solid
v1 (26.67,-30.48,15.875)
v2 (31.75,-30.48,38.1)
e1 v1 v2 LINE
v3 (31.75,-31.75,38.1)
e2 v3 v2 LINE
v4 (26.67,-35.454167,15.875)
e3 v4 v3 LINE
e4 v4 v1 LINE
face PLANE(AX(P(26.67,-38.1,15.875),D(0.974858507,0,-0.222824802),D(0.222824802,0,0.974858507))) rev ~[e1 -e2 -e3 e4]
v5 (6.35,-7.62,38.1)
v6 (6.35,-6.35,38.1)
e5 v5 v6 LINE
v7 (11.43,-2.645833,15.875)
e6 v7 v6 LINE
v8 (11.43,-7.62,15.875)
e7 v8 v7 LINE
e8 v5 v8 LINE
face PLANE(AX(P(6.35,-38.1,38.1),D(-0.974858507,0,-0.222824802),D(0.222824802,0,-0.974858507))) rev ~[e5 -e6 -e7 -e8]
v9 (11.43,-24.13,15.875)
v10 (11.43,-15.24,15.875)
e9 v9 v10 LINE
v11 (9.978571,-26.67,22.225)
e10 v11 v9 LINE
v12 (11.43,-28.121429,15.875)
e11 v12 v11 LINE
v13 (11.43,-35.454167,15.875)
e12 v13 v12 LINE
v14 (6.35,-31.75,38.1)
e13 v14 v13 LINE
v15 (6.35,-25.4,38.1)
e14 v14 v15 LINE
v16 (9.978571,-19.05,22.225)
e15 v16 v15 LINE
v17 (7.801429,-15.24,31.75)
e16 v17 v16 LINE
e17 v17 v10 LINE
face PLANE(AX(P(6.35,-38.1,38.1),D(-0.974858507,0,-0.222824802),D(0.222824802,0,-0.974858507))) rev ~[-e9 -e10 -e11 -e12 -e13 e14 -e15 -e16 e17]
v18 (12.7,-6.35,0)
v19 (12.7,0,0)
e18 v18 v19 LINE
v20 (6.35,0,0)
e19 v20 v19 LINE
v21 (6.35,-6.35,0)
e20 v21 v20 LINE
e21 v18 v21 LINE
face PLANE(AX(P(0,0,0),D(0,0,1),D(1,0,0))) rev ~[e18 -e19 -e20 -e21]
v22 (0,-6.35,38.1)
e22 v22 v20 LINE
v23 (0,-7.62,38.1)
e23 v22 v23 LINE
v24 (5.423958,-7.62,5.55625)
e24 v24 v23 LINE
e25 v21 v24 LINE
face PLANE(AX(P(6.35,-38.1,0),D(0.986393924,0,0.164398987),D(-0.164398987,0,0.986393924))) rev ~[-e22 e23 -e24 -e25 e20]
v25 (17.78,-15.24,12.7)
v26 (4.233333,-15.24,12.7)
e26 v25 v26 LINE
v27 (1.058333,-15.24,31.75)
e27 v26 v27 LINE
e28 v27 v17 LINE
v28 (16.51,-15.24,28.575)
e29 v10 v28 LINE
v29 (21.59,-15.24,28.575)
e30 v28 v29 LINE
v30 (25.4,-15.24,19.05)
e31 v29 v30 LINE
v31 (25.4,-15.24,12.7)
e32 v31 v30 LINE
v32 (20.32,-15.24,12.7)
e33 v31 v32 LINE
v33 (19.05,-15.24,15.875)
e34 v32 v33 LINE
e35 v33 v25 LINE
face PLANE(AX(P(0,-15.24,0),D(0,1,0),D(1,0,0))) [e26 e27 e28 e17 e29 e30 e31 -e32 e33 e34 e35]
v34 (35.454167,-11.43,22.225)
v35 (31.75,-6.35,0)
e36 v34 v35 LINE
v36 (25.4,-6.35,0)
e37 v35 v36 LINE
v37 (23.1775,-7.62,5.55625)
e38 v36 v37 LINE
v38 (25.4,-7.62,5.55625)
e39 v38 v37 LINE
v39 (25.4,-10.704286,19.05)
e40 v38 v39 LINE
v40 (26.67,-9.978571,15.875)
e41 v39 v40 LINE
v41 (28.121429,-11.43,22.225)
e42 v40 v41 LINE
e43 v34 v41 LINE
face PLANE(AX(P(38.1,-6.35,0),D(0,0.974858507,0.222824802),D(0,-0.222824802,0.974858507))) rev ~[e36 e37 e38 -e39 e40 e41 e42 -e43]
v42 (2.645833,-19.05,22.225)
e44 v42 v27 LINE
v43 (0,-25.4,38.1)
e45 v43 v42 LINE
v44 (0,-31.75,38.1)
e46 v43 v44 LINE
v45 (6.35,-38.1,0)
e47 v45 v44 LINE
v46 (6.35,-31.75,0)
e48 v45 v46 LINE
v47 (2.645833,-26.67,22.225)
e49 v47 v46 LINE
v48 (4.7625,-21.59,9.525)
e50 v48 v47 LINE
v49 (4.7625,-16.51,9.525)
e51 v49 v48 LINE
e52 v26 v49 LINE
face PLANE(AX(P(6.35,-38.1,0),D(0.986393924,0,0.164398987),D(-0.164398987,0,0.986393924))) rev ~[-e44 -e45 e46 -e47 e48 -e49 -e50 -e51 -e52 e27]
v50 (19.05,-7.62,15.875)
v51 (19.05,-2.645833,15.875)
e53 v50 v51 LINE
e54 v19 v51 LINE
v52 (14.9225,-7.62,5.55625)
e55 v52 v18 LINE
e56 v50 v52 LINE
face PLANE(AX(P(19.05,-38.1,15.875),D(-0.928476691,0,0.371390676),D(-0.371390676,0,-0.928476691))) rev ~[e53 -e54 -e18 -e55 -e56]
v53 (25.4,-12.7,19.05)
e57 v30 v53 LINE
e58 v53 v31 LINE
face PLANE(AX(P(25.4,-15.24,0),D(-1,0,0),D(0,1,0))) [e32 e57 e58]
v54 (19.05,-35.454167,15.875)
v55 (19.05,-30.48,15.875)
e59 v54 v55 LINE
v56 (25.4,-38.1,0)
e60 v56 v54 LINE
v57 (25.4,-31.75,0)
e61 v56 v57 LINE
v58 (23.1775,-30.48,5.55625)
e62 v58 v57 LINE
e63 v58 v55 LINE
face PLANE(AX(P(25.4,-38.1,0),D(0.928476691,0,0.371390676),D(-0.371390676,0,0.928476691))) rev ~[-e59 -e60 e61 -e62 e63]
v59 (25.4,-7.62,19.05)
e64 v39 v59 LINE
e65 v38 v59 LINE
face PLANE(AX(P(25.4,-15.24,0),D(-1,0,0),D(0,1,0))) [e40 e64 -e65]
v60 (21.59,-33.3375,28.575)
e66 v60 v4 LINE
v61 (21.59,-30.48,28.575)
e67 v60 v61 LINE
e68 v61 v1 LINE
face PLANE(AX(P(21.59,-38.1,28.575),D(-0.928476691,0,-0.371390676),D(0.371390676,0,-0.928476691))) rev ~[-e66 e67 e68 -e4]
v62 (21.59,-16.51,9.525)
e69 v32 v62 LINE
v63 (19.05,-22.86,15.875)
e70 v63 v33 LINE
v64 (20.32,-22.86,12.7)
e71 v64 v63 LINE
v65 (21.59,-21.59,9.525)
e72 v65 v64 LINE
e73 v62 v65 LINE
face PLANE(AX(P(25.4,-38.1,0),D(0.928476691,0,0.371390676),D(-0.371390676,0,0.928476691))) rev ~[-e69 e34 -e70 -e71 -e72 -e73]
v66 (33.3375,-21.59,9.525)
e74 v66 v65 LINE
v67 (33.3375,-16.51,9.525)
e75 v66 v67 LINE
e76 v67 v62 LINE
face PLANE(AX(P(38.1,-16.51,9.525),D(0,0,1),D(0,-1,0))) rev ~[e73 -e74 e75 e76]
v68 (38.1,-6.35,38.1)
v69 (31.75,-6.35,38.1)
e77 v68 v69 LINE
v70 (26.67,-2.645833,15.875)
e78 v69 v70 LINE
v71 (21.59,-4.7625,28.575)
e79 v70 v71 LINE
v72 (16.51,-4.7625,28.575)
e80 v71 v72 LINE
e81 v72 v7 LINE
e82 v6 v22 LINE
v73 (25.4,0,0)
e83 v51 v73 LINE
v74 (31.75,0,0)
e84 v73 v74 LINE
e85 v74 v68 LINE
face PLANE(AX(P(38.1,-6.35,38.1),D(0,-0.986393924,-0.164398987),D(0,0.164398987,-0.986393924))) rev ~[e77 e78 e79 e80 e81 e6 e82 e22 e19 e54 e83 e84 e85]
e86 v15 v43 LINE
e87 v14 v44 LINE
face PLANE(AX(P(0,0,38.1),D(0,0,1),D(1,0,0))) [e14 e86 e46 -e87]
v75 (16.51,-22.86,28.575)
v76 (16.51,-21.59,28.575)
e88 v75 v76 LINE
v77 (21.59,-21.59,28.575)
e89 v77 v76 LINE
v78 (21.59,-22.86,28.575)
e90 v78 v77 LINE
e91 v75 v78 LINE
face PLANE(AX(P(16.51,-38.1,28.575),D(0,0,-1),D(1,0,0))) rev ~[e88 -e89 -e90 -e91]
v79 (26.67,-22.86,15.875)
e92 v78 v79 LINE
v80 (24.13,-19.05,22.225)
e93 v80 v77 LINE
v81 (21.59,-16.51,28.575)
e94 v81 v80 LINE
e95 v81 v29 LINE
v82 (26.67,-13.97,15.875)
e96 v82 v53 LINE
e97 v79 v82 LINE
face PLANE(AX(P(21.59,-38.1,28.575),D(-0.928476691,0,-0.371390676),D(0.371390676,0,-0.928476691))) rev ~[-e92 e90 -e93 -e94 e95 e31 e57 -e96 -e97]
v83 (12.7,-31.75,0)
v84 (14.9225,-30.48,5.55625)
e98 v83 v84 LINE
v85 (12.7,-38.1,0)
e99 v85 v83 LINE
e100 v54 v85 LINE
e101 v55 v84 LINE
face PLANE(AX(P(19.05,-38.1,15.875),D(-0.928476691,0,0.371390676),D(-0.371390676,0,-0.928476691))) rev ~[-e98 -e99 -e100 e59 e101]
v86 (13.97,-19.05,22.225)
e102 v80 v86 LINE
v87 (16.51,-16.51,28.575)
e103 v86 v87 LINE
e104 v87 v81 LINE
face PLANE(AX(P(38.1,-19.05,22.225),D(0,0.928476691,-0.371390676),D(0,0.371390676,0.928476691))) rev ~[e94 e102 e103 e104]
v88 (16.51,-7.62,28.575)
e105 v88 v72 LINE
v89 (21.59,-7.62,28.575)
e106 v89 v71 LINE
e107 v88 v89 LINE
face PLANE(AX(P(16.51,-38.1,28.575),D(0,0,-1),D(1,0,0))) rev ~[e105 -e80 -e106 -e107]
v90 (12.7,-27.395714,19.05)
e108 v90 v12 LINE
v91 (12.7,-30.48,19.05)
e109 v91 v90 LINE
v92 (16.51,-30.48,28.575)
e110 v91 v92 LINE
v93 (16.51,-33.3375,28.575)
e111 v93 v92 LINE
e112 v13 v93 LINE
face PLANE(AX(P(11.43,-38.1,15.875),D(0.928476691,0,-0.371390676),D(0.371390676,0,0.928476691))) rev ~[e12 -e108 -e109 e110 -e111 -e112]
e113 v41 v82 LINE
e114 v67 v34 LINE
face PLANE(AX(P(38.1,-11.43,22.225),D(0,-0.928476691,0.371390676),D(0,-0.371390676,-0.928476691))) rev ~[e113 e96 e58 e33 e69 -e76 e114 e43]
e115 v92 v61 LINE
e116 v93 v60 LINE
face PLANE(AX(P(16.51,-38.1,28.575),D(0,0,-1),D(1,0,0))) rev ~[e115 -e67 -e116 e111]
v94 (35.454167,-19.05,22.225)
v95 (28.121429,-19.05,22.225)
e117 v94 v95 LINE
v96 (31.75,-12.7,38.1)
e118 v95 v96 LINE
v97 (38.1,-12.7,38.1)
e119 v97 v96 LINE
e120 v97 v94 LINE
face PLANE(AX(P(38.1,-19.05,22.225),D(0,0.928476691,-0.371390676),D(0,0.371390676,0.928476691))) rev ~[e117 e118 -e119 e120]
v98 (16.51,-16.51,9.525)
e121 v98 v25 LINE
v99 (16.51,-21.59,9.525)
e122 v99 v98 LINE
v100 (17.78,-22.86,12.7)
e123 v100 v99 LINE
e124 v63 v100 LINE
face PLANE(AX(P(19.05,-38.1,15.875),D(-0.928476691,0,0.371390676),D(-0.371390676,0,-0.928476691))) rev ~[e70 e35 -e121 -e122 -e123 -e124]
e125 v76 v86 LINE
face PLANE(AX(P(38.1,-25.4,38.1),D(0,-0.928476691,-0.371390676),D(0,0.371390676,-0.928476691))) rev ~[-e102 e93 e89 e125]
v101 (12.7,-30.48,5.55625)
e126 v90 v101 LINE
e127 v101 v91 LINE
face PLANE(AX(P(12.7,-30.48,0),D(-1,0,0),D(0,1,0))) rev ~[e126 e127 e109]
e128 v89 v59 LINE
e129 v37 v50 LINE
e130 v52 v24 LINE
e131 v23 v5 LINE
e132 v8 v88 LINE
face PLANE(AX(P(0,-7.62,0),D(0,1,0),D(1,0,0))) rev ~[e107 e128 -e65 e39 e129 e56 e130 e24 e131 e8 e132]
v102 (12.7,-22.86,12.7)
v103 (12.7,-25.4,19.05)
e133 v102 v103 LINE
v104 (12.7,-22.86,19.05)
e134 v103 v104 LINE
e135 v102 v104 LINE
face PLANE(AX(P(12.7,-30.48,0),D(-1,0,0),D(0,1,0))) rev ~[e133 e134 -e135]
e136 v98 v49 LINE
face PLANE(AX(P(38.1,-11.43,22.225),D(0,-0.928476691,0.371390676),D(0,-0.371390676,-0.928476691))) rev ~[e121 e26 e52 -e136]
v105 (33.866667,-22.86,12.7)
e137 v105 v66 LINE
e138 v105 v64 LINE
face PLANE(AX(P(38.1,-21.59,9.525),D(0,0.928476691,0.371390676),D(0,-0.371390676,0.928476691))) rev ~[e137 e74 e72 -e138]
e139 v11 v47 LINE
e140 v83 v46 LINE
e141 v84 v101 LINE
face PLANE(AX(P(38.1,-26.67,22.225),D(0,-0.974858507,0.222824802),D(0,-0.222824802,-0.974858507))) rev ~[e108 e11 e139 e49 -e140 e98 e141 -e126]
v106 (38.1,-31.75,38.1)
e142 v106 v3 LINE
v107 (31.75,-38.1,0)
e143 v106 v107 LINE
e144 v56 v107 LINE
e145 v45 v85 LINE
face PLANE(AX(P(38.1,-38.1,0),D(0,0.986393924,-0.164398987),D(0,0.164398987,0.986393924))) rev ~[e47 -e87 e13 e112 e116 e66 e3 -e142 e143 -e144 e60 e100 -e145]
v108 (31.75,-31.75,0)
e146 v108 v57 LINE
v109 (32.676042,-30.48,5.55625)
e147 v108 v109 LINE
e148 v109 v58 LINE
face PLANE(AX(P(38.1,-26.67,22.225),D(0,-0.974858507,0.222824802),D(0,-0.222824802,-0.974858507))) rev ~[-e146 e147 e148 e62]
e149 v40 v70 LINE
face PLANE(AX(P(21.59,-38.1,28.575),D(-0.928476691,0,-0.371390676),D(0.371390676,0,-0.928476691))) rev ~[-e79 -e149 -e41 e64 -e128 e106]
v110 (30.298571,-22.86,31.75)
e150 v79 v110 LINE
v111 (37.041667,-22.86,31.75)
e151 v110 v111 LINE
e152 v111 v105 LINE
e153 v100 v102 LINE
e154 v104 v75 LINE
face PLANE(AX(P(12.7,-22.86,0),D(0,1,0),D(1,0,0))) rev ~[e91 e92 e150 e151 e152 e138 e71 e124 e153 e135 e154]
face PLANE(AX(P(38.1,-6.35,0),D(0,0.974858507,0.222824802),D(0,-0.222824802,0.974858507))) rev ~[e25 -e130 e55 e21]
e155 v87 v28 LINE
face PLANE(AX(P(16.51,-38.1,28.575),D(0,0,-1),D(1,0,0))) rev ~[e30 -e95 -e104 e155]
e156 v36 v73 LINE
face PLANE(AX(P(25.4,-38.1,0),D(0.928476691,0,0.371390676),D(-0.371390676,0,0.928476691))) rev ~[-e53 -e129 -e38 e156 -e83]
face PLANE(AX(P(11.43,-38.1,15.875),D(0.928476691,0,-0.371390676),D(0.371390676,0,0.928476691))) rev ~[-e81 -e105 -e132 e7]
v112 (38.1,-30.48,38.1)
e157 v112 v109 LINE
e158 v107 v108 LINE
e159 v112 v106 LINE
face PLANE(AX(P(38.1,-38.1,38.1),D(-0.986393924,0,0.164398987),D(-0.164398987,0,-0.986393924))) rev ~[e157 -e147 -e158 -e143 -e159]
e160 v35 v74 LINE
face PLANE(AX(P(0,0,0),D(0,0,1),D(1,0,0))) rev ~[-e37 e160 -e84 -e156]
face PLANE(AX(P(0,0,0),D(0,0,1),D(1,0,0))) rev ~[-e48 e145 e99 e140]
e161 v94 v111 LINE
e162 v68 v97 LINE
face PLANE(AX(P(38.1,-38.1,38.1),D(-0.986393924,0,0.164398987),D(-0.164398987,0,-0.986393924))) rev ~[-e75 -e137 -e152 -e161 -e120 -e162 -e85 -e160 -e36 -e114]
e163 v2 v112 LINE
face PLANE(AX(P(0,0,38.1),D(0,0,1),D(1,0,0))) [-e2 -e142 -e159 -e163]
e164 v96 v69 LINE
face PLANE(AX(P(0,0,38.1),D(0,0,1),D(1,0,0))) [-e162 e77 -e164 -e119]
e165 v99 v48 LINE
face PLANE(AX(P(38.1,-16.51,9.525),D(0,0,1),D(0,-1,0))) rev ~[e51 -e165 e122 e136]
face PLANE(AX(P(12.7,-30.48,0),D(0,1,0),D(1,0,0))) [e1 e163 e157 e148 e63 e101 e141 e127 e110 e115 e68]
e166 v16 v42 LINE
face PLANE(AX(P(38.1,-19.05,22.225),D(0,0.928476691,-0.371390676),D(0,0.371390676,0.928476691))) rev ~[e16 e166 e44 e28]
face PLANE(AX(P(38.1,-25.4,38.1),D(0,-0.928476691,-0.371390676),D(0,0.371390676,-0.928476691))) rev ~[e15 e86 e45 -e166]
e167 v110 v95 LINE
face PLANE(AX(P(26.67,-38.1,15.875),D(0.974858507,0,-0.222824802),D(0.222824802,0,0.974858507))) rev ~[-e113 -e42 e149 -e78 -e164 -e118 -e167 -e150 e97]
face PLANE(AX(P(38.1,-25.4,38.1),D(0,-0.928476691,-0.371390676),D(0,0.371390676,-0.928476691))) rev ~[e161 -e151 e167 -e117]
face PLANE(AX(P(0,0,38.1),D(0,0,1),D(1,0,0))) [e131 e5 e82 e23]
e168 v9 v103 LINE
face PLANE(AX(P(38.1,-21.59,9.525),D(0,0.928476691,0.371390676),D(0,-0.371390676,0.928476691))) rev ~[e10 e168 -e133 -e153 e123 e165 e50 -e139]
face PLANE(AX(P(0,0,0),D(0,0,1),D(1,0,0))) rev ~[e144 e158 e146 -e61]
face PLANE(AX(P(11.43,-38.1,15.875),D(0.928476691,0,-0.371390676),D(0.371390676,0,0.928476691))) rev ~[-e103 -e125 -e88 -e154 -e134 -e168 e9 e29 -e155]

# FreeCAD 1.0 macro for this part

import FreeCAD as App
import Part
import Sketcher
Q = App.Units.Quantity


def add_polygon(sketch, points):
    """Adds a closed chain of lines whose ends are joined by coincident constraints."""
    first, n = sketch.GeometryCount, len(points)
    for a, b in zip(points, points[1:] + points[:1]):
        sketch.addGeometry(Part.LineSegment(App.Vector(*a, 0), App.Vector(*b, 0)), False)
    for i in range(n):
        sketch.addConstraint(Sketcher.Constraint("Coincident", first + i, 2, first + (i + 1) % n, 1))

doc = App.newDocument("Part")
params = doc.addObject("Spreadsheet::Sheet", "Params")
for row, (alias, value) in enumerate([
    ("sketch1_width", "1.5 in"),
    ("pad1_length", "1.5 in"),
    ("sketch2_width", "1 in"),
    ("sketch2_width2", "0.5 in"),
    ("sketch2_width3", "0.2 in"),
    ("sketch2_height", "1.5 in"),
    ("pocket1_length", "1.5 in"),
    ("sketch3_width", "1 in"),
    ("sketch3_width2", "0.2 in"),
    ("sketch3_width3", "0.5 in"),
    ("sketch3_height", "1.5 in"),
    ("pocket2_length", "1.5 in"),
    ("sketch4_width", "1 in"),
    ("sketch4_height", "0.3 in"),
    ("pocket3_length", "1.5 in"),
], start=1):
    params.set(f"A{row}", alias)
    params.set(f"B{row}", "=" + value)
    params.setAlias(f"B{row}", alias)

body = doc.addObject("PartDesign::Body", "Body")

# Sketch on XZ plane
sketch1 = doc.addObject("Sketcher::SketchObject", "Sketch")
body.addObject(sketch1)
sketch1.AttachmentSupport = (doc.XZ_Plane, [""])
sketch1.MapMode = "FlatFace"
add_polygon(sketch1, [(0, 38), (0, 0), (38, 0), (38, 38)])  # lines 0-3
sketch1.addConstraint([
    Sketcher.Constraint("Vertical", 0),
    Sketcher.Constraint("Horizontal", 1),
    Sketcher.Constraint("Vertical", 2),
    Sketcher.Constraint("Horizontal", 3),
    Sketcher.Constraint("Coincident", 0, 2, -1, 1),
    Sketcher.Constraint("Equal", 3, 0),
    Sketcher.Constraint("DistanceX", 1, 1, 1, 2, Q("1.5 in")),
])
sketch1.setExpression("Constraints[10]", "Params.sketch1_width")
pad1 = doc.addObject("PartDesign::Pad", "Pad")
body.addObject(pad1)
pad1.Profile = sketch1
pad1.setExpression("Length", "Params.pad1_length")

# Sketch on XZ plane
sketch2 = doc.addObject("Sketcher::SketchObject", "Sketch001")
body.addObject(sketch2)
sketch2.AttachmentSupport = (doc.XZ_Plane, [""])
sketch2.MapMode = "FlatFace"
sketch2.AttachmentOffset = App.Placement(App.Vector(0, 0, 1.5 * 25.4), App.Rotation())
add_polygon(sketch2, [(0, 38), (0, 0), (6, 0)])  # lines 0-2
add_polygon(sketch2, [(19, 16), (13, 0), (25, 0)])  # lines 3-5
add_polygon(sketch2, [(32, 38), (6, 38), (11, 16), (17, 29), (22, 29), (27, 16)])  # lines 6-11
add_polygon(sketch2, [(38, 0), (38, 38), (32, 0)])  # lines 12-14
sketch2.addConstraint([
    Sketcher.Constraint("Vertical", 0),
    Sketcher.Constraint("Horizontal", 1),
    Sketcher.Constraint("Horizontal", 4),
    Sketcher.Constraint("Horizontal", 6),
    Sketcher.Constraint("Horizontal", 9),
    Sketcher.Constraint("Vertical", 12),
    Sketcher.Constraint("Horizontal", 14),
    Sketcher.Constraint("Coincident", 0, 2, -1, 1),
    Sketcher.Constraint("PointOnObject", 3, 2, -1),
    Sketcher.Constraint("PointOnObject", 13, 2, -1),
    Sketcher.Constraint("Parallel", 3, 8),
    Sketcher.Constraint("Parallel", 5, 10),
    Sketcher.Constraint("Horizontal", 2, 2, 6, 2),
    Sketcher.Constraint("Horizontal", 5, 2, 7, 2),
    Sketcher.Constraint("Horizontal", 7, 2, 10, 2),
    Sketcher.Constraint("Horizontal", 11, 2, 12, 2),
    Sketcher.Constraint("Vertical", 1, 2, 6, 2),
    Sketcher.Constraint("Vertical", 11, 2, 13, 2),
    Sketcher.Constraint("Equal", 1, 14),
    Sketcher.Constraint("Equal", 3, 5),
    Sketcher.Constraint("Equal", 7, 11),
    Sketcher.Constraint("DistanceX", 6, 2, 6, 1, Q("1 in")),
    Sketcher.Constraint("DistanceX", 4, 1, 4, 2, Q("0.5 in")),
    Sketcher.Constraint("DistanceX", 9, 1, 9, 2, Q("0.2 in")),
    Sketcher.Constraint("DistanceY", 0, 2, 0, 1, Q("1.5 in")),
    Sketcher.Constraint("DistanceX", -1, 1, 4, 2, Q("1 in")),
    Sketcher.Constraint("DistanceX", 3, 2, 14, 2, Q("1 in")),
    Sketcher.Constraint("DistanceX", 7, 2, 5, 2, Q("0.3 in")),
    Sketcher.Constraint("DistanceY", 5, 2, 8, 2, Q("0.5 in")),
])
sketch2.setExpression("Constraints[36]", "Params.sketch2_width")
sketch2.setExpression("Constraints[37]", "Params.sketch2_width2")
sketch2.setExpression("Constraints[38]", "Params.sketch2_width3")
sketch2.setExpression("Constraints[39]", "Params.sketch2_height")
pocket1 = doc.addObject("PartDesign::Pocket", "Pocket")
body.addObject(pocket1)
pocket1.Profile = sketch2
pocket1.setExpression("Length", "Params.pocket1_length")

# Sketch on YZ plane
sketch3 = doc.addObject("Sketcher::SketchObject", "Sketch002")
body.addObject(sketch3)
sketch3.AttachmentSupport = (doc.YZ_Plane, [""])
sketch3.MapMode = "FlatFace"
sketch3.AttachmentOffset = App.Placement(App.Vector(0, 0, 1.5 * 25.4), App.Rotation())
add_polygon(sketch3, [(-32, 0), (-6, 0), (-11, 22), (-17, 10), (-22, 10), (-27, 22)])  # lines 0-5
add_polygon(sketch3, [(-6, 38), (0, 0), (0, 38)])  # lines 6-8
add_polygon(sketch3, [(-19, 22), (-13, 38), (-25, 38)])  # lines 9-11
add_polygon(sketch3, [(-38, 38), (-38, 0), (-32, 38)])  # lines 12-14
sketch3.addConstraint([
    Sketcher.Constraint("Horizontal", 0),
    Sketcher.Constraint("Horizontal", 3),
    Sketcher.Constraint("Vertical", 7),
    Sketcher.Constraint("Horizontal", 8),
    Sketcher.Constraint("Horizontal", 10),
    Sketcher.Constraint("Vertical", 12),
    Sketcher.Constraint("Horizontal", 14),
    Sketcher.Constraint("Coincident", 6, 2, -1, 1),
    Sketcher.Constraint("PointOnObject", 0, 2, -1),
    Sketcher.Constraint("PointOnObject", 12, 2, -1),
    Sketcher.Constraint("Parallel", 2, 9),
    Sketcher.Constraint("Parallel", 4, 11),
    Sketcher.Constraint("Horizontal", 1, 2, 4, 2),
    Sketcher.Constraint("Horizontal", 8, 2, 9, 2),
    Sketcher.Constraint("Horizontal", 4, 2, 11, 2),
    Sketcher.Constraint("Horizontal", 10, 2, 13, 2),
    Sketcher.Constraint("Vertical", 0, 2, 8, 2),
    Sketcher.Constraint("Vertical", 5, 2, 13, 2),
    Sketcher.Constraint("Equal", 8, 14),
    Sketcher.Constraint("Equal", 2, 4),
    Sketcher.Constraint("Equal", 1, 5),
    Sketcher.Constraint("DistanceX", 0, 1, 0, 2, Q("1 in")),
    Sketcher.Constraint("DistanceX", 3, 2, 3, 1, Q("0.2 in")),
    Sketcher.Constraint("DistanceX", 10, 2, 10, 1, Q("0.5 in")),
    Sketcher.Constraint("DistanceY", 7, 1, 7, 2, Q("1.5 in")),
    Sketcher.Constraint("DistanceX", 10, 2, -1, 1, Q("1 in")),
    Sketcher.Constraint("DistanceX", 14, 2, 9, 2, Q("1 in")),
    Sketcher.Constraint("DistanceX", 1, 2, 0, 2, Q("0.2 in")),
    Sketcher.Constraint("DistanceY", 2, 2, 1, 2, Q("0.5 in")),
])
sketch3.setExpression("Constraints[36]", "Params.sketch3_width")
sketch3.setExpression("Constraints[37]", "Params.sketch3_width2")
sketch3.setExpression("Constraints[38]", "Params.sketch3_width3")
sketch3.setExpression("Constraints[39]", "Params.sketch3_height")
pocket2 = doc.addObject("PartDesign::Pocket", "Pocket001")
body.addObject(pocket2)
pocket2.Profile = sketch3
pocket2.setExpression("Length", "Params.pocket2_length")

# Sketch on XY plane
sketch4 = doc.addObject("Sketcher::SketchObject", "Sketch003")
body.addObject(sketch4)
sketch4.AttachmentSupport = (doc.XY_Plane, [""])
sketch4.MapMode = "FlatFace"
add_polygon(sketch4, [(0, -8), (0, -15), (25, -15), (25, -8)])  # lines 0-3
add_polygon(sketch4, [(13, -23), (13, -30), (38, -30), (38, -23)])  # lines 4-7
sketch4.addConstraint([
    Sketcher.Constraint("Vertical", 0),
    Sketcher.Constraint("Horizontal", 1),
    Sketcher.Constraint("Vertical", 2),
    Sketcher.Constraint("Horizontal", 3),
    Sketcher.Constraint("Vertical", 4),
    Sketcher.Constraint("Horizontal", 5),
    Sketcher.Constraint("Vertical", 6),
    Sketcher.Constraint("Horizontal", 7),
    Sketcher.Constraint("PointOnObject", 0, 2, -2),
    Sketcher.Constraint("Equal", 3, 5),
    Sketcher.Constraint("Equal", 2, 4),
    Sketcher.Constraint("DistanceX", 1, 1, 1, 2, Q("1 in")),
    Sketcher.Constraint("DistanceY", 0, 2, 0, 1, Q("0.3 in")),
    Sketcher.Constraint("DistanceY", 0, 2, -1, 1, Q("0.6 in")),
    Sketcher.Constraint("DistanceX", -1, 1, 4, 2, Q("0.5 in")),
    Sketcher.Constraint("DistanceY", 4, 2, -1, 1, Q("1.2 in")),
])
sketch4.setExpression("Constraints[19]", "Params.sketch4_width")
sketch4.setExpression("Constraints[20]", "Params.sketch4_height")
pocket3 = doc.addObject("PartDesign::Pocket", "Pocket002")
body.addObject(pocket3)
pocket3.Profile = sketch4
pocket3.setExpression("Length", "Params.pocket3_length")
pocket3.Reversed = True

doc.recompute()
